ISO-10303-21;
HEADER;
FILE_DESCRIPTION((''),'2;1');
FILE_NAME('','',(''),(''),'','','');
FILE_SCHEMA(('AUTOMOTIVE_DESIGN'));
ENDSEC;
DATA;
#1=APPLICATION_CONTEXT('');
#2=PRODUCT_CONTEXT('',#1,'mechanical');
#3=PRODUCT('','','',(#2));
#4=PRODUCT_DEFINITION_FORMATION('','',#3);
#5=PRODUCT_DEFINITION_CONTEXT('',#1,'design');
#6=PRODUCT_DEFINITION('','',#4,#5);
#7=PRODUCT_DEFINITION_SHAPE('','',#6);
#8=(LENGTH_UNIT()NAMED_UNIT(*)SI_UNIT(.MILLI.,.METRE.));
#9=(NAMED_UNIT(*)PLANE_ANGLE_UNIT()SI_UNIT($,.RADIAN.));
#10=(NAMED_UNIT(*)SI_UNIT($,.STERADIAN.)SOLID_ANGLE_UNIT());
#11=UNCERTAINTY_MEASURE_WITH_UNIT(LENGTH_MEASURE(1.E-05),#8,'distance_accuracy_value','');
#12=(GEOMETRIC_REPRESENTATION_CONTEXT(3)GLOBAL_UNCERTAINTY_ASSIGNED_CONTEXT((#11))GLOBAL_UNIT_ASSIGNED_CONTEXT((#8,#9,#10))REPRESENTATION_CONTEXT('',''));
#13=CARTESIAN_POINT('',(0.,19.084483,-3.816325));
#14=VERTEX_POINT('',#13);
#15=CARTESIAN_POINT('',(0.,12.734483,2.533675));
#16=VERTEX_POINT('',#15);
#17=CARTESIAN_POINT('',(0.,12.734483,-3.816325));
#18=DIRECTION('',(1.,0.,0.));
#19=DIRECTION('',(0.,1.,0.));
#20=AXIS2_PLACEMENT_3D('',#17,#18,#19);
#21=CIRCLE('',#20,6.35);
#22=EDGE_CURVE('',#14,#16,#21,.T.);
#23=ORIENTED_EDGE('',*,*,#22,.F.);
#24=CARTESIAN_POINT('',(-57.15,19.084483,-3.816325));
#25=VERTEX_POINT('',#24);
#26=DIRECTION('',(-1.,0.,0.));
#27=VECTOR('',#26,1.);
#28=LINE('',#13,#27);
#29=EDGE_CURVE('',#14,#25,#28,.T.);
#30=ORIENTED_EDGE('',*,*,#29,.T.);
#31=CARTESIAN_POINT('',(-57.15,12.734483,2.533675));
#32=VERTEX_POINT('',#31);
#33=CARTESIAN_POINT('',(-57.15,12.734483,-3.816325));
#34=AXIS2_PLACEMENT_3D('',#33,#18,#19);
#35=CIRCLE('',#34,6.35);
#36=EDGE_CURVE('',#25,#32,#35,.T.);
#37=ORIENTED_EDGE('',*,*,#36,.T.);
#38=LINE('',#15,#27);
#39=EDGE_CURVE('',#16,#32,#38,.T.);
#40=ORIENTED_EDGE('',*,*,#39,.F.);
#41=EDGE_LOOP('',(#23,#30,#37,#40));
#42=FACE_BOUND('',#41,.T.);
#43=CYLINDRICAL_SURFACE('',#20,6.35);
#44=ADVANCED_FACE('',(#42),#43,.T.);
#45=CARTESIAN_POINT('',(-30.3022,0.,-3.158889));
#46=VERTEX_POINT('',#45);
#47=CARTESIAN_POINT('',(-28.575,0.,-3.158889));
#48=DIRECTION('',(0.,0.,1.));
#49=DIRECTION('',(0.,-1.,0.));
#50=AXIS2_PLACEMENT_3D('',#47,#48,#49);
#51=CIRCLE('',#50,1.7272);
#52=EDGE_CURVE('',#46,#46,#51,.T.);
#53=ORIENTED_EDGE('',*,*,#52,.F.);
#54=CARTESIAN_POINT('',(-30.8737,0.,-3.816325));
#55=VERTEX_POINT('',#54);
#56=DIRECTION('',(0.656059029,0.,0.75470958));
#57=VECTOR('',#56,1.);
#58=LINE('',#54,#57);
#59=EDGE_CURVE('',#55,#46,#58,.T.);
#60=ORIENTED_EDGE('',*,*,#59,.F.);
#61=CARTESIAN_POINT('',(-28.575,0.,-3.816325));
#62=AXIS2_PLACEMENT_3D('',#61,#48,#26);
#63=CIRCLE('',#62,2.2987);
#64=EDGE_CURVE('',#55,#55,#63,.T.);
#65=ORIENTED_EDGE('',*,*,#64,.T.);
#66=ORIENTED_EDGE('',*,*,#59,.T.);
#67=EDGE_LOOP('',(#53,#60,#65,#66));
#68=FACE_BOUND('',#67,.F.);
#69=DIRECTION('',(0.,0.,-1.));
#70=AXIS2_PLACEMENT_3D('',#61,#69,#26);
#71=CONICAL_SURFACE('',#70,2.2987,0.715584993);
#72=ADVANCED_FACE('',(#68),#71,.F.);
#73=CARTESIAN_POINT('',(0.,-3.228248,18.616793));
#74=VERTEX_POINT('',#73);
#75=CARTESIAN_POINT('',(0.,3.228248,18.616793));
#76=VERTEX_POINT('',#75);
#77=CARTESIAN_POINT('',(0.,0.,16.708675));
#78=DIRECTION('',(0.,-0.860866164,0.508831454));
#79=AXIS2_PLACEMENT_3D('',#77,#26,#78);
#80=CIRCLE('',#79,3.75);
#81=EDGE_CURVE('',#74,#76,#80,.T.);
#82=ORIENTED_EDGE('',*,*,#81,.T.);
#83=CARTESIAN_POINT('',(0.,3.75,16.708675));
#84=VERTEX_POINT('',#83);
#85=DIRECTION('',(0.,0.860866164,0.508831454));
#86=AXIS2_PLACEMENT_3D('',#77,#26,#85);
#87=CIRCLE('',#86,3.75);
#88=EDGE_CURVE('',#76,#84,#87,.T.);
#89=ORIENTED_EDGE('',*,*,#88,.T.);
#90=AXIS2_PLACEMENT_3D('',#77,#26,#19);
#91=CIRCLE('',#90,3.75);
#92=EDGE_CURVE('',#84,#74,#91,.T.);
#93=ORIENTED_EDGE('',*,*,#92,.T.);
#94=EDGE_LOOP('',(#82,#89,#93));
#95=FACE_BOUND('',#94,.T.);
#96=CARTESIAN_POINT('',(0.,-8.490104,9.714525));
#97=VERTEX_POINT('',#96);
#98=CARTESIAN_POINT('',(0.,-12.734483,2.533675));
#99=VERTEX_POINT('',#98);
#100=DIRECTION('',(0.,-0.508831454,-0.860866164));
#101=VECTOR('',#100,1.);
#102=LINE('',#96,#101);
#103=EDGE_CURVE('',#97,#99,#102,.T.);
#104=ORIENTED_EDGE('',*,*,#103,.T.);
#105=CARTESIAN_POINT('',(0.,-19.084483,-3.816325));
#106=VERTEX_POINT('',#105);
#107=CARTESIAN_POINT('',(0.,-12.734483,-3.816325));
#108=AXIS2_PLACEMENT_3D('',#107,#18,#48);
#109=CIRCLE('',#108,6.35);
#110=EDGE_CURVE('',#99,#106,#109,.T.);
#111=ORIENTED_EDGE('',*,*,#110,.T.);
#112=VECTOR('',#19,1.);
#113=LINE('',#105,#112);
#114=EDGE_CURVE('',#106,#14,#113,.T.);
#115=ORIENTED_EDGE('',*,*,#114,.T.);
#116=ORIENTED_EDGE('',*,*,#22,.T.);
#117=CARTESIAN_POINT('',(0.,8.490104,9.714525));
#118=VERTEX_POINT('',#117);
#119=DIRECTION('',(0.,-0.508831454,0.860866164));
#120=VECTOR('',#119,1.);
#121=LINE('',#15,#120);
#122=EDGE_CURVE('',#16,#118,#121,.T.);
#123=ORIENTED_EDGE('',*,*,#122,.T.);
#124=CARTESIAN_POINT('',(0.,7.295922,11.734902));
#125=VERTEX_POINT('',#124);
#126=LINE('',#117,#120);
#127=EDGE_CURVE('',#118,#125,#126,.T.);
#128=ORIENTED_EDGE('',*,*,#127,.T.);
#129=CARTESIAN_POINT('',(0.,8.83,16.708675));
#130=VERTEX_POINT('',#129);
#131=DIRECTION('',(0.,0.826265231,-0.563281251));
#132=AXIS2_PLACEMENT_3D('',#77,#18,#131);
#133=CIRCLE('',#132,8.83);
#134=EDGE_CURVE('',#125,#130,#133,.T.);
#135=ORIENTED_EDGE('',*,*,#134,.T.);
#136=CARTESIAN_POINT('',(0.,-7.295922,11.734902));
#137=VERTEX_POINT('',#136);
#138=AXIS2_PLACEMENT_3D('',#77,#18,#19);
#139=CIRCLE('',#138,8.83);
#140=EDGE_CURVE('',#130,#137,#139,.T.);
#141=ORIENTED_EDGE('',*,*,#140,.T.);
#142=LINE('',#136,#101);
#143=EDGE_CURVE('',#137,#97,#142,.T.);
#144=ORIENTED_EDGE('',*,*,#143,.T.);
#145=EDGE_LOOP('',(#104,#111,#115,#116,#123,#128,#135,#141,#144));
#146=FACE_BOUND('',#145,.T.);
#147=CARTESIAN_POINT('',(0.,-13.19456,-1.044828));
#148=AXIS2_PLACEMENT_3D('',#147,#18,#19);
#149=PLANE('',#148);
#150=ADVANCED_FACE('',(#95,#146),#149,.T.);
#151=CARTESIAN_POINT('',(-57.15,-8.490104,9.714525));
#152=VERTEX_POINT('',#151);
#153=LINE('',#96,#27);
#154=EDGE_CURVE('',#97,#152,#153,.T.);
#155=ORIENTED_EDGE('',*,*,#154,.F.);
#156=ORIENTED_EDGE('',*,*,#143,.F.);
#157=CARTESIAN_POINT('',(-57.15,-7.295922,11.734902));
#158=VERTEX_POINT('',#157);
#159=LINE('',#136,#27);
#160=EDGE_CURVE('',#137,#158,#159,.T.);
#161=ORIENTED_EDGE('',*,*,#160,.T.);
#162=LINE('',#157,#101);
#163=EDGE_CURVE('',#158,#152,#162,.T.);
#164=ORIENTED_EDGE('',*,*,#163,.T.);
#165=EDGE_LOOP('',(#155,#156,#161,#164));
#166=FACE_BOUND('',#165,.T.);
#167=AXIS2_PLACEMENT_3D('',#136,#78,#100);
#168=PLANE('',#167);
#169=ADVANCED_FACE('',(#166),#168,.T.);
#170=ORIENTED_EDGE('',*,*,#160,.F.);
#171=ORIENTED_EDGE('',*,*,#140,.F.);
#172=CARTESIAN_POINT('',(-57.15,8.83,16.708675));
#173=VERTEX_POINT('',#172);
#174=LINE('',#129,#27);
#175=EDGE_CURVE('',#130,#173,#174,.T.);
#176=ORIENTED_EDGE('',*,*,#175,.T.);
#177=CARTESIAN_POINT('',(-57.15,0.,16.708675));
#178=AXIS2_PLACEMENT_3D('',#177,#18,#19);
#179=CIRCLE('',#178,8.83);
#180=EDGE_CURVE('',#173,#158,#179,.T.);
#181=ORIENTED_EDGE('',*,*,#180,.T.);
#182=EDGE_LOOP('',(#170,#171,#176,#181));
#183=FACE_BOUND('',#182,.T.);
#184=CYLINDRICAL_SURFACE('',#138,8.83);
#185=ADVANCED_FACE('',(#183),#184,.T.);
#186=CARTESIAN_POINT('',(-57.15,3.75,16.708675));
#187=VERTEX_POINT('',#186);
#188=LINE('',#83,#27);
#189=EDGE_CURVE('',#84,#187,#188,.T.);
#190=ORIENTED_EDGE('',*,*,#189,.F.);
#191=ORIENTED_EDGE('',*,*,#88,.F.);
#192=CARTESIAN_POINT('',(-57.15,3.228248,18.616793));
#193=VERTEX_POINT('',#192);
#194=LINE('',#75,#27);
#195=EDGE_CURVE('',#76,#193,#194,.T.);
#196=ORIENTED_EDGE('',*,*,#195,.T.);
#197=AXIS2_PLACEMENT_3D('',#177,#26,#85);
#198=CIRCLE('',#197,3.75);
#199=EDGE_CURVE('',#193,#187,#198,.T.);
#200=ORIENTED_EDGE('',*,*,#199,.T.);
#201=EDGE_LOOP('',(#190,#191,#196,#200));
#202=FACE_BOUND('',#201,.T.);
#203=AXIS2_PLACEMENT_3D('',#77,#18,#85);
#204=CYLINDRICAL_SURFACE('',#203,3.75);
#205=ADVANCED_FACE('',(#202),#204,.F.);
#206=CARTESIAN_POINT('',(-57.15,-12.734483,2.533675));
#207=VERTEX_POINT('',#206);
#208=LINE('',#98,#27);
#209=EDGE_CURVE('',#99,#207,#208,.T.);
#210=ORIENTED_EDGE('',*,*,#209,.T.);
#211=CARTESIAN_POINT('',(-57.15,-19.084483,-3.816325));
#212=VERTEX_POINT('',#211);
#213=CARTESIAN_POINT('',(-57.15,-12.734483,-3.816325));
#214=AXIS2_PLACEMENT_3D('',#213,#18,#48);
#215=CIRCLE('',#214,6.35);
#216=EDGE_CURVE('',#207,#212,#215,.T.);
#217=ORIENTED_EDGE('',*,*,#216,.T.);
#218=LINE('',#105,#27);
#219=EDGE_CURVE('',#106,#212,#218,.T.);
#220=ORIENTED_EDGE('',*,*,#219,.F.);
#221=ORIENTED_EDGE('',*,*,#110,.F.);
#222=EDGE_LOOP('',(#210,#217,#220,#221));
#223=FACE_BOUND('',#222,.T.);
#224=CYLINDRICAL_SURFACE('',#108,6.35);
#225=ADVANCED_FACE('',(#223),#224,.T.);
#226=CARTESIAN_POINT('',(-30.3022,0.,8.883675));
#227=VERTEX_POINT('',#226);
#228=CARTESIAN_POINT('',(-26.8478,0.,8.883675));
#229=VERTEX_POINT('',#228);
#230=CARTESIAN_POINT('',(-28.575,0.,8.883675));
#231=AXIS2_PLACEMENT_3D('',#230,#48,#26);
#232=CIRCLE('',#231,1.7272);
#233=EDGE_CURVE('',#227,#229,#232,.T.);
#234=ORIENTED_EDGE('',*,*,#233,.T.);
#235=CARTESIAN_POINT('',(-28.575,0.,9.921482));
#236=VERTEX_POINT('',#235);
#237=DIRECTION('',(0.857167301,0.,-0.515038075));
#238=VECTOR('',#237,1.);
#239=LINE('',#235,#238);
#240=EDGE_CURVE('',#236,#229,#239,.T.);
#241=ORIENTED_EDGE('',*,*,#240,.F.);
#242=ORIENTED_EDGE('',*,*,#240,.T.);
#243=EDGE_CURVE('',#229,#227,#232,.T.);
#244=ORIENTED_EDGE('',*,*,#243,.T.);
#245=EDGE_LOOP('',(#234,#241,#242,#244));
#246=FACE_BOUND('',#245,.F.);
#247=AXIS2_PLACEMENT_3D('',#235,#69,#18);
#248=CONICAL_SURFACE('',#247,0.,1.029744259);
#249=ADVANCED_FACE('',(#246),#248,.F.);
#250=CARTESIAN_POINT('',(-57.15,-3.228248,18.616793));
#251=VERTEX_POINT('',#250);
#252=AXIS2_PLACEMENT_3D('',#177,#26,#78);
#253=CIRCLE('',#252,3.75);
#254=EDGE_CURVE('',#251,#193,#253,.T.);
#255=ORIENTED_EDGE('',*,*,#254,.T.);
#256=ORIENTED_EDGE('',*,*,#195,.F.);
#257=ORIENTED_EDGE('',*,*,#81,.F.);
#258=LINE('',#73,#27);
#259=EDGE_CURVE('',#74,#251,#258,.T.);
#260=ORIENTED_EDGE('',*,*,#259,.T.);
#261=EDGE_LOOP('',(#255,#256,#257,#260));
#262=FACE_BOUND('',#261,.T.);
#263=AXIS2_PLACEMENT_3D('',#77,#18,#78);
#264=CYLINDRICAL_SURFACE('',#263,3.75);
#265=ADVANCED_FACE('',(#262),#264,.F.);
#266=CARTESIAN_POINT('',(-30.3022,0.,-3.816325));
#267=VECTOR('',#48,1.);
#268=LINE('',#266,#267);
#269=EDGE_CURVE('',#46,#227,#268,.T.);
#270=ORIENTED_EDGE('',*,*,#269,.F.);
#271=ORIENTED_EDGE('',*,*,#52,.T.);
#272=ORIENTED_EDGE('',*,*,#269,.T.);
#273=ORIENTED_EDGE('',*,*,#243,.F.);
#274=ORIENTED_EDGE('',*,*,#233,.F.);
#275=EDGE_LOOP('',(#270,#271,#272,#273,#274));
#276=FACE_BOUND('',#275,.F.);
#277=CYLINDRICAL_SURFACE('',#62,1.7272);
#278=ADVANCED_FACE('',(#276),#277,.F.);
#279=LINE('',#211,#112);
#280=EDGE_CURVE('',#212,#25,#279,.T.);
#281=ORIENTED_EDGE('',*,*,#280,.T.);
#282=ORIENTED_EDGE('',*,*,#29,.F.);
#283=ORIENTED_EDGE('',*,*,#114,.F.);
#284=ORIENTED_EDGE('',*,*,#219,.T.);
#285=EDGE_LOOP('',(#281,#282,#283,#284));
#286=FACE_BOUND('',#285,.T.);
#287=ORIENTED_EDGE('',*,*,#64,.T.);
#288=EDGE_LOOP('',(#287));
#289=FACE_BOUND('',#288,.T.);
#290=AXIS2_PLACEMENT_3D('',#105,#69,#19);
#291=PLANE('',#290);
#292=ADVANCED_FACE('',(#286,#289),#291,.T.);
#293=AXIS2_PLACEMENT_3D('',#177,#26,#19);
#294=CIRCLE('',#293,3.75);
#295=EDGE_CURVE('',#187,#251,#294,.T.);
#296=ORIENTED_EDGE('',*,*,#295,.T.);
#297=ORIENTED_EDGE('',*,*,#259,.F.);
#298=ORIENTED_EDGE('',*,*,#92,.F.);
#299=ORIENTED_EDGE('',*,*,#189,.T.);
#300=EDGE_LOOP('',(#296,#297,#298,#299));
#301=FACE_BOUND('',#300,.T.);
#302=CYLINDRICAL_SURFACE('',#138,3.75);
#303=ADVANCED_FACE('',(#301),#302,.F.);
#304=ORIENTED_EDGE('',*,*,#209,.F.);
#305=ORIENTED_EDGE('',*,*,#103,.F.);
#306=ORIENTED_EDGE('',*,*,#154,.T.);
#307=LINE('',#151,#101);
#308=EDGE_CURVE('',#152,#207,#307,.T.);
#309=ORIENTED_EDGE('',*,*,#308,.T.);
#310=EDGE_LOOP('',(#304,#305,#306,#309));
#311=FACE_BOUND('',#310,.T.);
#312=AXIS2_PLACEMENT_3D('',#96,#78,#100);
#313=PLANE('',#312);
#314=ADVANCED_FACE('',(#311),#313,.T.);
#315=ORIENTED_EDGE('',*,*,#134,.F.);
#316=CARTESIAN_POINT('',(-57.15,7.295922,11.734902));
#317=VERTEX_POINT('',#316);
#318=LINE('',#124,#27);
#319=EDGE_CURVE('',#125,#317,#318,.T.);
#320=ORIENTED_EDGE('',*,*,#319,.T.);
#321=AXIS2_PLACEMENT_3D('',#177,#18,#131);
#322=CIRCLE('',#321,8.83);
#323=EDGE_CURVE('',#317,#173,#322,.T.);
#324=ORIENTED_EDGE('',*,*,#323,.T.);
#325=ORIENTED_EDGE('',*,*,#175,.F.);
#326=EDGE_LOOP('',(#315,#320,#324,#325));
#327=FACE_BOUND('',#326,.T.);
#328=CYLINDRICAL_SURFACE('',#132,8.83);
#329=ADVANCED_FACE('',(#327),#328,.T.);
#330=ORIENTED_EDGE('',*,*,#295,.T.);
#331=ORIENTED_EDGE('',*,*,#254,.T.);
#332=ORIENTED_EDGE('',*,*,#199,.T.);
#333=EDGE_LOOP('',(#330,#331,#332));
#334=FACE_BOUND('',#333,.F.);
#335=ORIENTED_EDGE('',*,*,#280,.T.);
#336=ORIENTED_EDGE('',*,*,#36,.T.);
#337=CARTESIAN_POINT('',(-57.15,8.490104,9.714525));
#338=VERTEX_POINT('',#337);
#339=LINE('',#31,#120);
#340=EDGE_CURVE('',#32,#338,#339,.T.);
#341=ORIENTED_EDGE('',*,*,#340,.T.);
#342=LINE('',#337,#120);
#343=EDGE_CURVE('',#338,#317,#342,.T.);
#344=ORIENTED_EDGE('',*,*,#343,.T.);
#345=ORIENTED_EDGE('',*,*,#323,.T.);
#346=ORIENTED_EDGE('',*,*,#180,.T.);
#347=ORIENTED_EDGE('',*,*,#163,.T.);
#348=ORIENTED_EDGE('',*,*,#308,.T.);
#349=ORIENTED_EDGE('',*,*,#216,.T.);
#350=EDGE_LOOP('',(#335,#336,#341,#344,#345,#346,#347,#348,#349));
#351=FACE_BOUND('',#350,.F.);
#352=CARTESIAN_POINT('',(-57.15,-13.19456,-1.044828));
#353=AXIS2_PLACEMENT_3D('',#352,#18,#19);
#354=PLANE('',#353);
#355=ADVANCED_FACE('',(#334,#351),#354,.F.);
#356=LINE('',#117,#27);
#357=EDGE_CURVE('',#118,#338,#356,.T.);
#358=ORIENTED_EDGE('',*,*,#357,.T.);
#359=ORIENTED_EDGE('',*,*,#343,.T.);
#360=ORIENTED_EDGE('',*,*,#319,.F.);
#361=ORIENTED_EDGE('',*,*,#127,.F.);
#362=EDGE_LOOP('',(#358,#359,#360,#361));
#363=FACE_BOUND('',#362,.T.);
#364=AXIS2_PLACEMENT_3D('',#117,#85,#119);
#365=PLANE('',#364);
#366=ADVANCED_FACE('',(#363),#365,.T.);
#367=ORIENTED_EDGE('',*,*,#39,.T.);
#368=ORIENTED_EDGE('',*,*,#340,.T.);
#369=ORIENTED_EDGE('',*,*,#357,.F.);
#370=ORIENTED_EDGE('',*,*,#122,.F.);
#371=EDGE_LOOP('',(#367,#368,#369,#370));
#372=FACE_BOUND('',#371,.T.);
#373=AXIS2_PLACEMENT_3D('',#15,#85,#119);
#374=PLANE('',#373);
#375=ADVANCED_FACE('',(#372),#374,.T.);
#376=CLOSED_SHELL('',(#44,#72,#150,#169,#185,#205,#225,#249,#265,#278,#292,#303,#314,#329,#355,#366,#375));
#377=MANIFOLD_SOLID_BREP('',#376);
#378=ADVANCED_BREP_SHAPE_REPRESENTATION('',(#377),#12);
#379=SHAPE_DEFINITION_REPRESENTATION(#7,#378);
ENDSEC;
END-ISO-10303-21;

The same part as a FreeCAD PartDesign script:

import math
import FreeCAD as App
import Part
import Sketcher

V = App.Vector
Q = App.Units.Quantity

doc = App.newDocument("Part")
body = doc.addObject("PartDesign::Body", "Body")

# Sketch on YZ plane
sketch1 = doc.addObject("Sketcher::SketchObject", "Sketch")
body.addObject(sketch1)
sketch1.AttachmentSupport = (doc.YZ_Plane, [""])
sketch1.MapMode = "FlatFace"
sketch1.addGeometry([
    Part.ArcOfCircle(Part.Circle(V(-12.734483, -3.816325, 0), V(0, 0, 1), 6.35), math.radians(90), math.radians(180)),  # 0
    Part.LineSegment(V(-19.084483, -3.816325, 0), V(19.084483, -3.816325, 0)),  # 1
    Part.ArcOfCircle(Part.Circle(V(12.734483, -3.816325, 0), V(0, 0, 1), 6.35), math.radians(0), math.radians(90)),  # 2
    Part.LineSegment(V(12.734483, 2.533675, 0), V(8.490104, 9.714525, 0)),  # 3
    Part.LineSegment(V(8.490104, 9.714525, 0), V(7.295922, 11.734902, 0)),  # 4
    Part.ArcOfCircle(Part.Circle(V(0, 16.708675, 0), V(0, 0, 1), 8.83), math.radians(-34.283023), math.radians(0)),  # 5
    Part.ArcOfCircle(Part.Circle(V(0, 16.708675, 0), V(0, 0, 1), 8.83), math.radians(0), math.radians(214.283023)),  # 6
    Part.LineSegment(V(-7.295922, 11.734902, 0), V(-8.490104, 9.714525, 0)),  # 7
    Part.LineSegment(V(-8.490104, 9.714525, 0), V(-12.734483, 2.533675, 0)),  # 8
    Part.ArcOfCircle(Part.Circle(V(0, 16.708675, 0), V(0, 0, 1), 3.75), math.radians(149.413975), math.radians(360)),  # 9
    Part.ArcOfCircle(Part.Circle(V(0, 16.708675, 0), V(0, 0, 1), 3.75), math.radians(30.586025), math.radians(149.413975)),  # 10
    Part.ArcOfCircle(Part.Circle(V(0, 16.708675, 0), V(0, 0, 1), 3.75), math.radians(0), math.radians(30.586025)),  # 11
], False)
sketch1.addConstraint([
    Sketcher.Constraint("Coincident", 0, 2, 1, 1),
    Sketcher.Constraint("Coincident", 1, 2, 2, 1),
    Sketcher.Constraint("Coincident", 2, 2, 3, 1),
    Sketcher.Constraint("Coincident", 3, 2, 4, 1),
    Sketcher.Constraint("Coincident", 4, 2, 5, 1),
    Sketcher.Constraint("Tangent", 5, 2, 6, 1),
    Sketcher.Constraint("Coincident", 6, 2, 7, 1),
    Sketcher.Constraint("Coincident", 7, 2, 8, 1),
    Sketcher.Constraint("Coincident", 8, 2, 0, 1),
    Sketcher.Constraint("Tangent", 9, 1, 10, 2),
    Sketcher.Constraint("Tangent", 10, 1, 11, 2),
    Sketcher.Constraint("Tangent", 11, 1, 9, 2),
    Sketcher.Constraint("Horizontal", 1),
    Sketcher.Constraint("Coincident", 9, 3, 5, 3),
    Sketcher.Constraint("Equal", 0, 2),
    Sketcher.Constraint("Equal", 5, 6),
    Sketcher.Constraint("Symmetric", 0, 3, 2, 3, -2),
    Sketcher.Constraint("Symmetric", 4, 2, 6, 2, -2),
    Sketcher.Constraint("Symmetric", 3, 2, 7, 2, -2),
    Sketcher.Constraint("Parallel", 3, 4),
    Sketcher.Constraint("Parallel", 7, 8),
    Sketcher.Constraint("Horizontal", 2, 3, 0, 2),
    Sketcher.Constraint("Horizontal", 11, 3, 5, 2),
    Sketcher.Constraint("Horizontal", 9, 1, 10, 1),
    Sketcher.Constraint("Horizontal", 5, 2, 11, 1),
    Sketcher.Constraint("Vertical", 0, 3, 8, 2),
    Sketcher.Constraint("Radius", 0, Q("0.25 in")),
    Sketcher.Constraint("Radius", 5, Q("8.83 mm")),
    Sketcher.Constraint("Radius", 9, Q("3.75 mm")),
    Sketcher.Constraint("DistanceY", -1, 1, 4, 2, Q("11.734902 mm")),
    Sketcher.Constraint("DistanceY", 0, 3, 5, 3, Q("20.525 mm")),
    Sketcher.Constraint("Distance", 4, Q("2.346911 mm")),
    Sketcher.Constraint("DistanceX", 1, 1, 1, 2, Q("38.168967 mm")),
    Sketcher.Constraint("DistanceX", -1, 1, 4, 2, Q("7.295922 mm")),
    Sketcher.Constraint("DistanceX", 9, 1, -1, 1, Q("3.228248 mm")),
])
pad1 = doc.addObject("PartDesign::Pad", "Pad")
body.addObject(pad1)
pad1.Profile = sketch1
pad1.Length = Q("2.25 in")
pad1.Reversed = True

# Sketch on XY plane
sketch2 = doc.addObject("Sketcher::SketchObject", "Sketch001")
body.addObject(sketch2)
sketch2.AttachmentSupport = (doc.XY_Plane, [""])
sketch2.MapMode = "FlatFace"
sketch2.AttachmentOffset = App.Placement(V(0, 0, -3.816325), App.Rotation())
sketch2.addGeometry(Part.Circle(V(-28.575, 0, 0), V(0, 0, 1), 1.7272), False)
sketch2.addConstraint([
    Sketcher.Constraint("PointOnObject", 0, 3, -1),
    Sketcher.Constraint("Diameter", 0, Q("0.136 in")),
    Sketcher.Constraint("DistanceX", 0, 3, -1, 1, Q("1.125 in")),
])
doc.recompute()
hole = doc.addObject("PartDesign::Hole", "Hole")
body.addObject(hole)
hole.Profile = sketch2
hole.ThreadType = "None"
hole.Diameter = Q("0.136 in")
hole.DepthType = "Dimension"
hole.Depth = Q("0.5 in")
hole.DrillPoint = "Angled"
hole.DrillPointAngle = 118
hole.HoleCutType = "Countersink"
hole.HoleCutDiameter = Q("0.181 in")
hole.HoleCutCountersinkAngle = 82
hole.Reversed = True

doc.recompute()
